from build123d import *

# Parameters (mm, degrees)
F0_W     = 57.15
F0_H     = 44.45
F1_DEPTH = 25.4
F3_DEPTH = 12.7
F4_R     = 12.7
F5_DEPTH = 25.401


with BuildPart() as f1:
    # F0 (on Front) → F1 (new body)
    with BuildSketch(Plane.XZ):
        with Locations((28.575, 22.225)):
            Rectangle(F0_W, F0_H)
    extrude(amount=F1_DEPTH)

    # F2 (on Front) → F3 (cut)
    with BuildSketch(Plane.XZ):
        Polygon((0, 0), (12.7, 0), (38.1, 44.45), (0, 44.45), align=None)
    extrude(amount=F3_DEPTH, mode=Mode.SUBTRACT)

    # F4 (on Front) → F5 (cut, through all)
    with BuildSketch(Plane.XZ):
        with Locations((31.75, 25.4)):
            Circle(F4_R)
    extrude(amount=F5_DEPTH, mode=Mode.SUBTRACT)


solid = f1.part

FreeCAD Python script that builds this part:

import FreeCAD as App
import Part
import Sketcher
Q = App.Units.Quantity

doc = App.newDocument("Part")
body = doc.addObject("PartDesign::Body", "Body")

sketch1 = doc.addObject("Sketcher::SketchObject", "Sketch")
body.addObject(sketch1)
sketch1.AttachmentSupport = (doc.XZ_Plane, [""])
sketch1.MapMode = "FlatFace"
sketch1.addGeometry(Part.LineSegment(App.Vector(0, 44, 0), App.Vector(0, 0, 0)), False)
sketch1.addGeometry(Part.LineSegment(App.Vector(0, 0, 0), App.Vector(57, 0, 0)), False)
sketch1.addGeometry(Part.LineSegment(App.Vector(57, 0, 0), App.Vector(57, 44, 0)), False)
sketch1.addGeometry(Part.LineSegment(App.Vector(57, 44, 0), App.Vector(0, 44, 0)), False)
sketch1.addConstraint(Sketcher.Constraint("Coincident", 0, 2, 1, 1))
sketch1.addConstraint(Sketcher.Constraint("Coincident", 1, 2, 2, 1))
sketch1.addConstraint(Sketcher.Constraint("Coincident", 2, 2, 3, 1))
sketch1.addConstraint(Sketcher.Constraint("Coincident", 3, 2, 0, 1))
sketch1.addConstraint(Sketcher.Constraint("Vertical", 0))
sketch1.addConstraint(Sketcher.Constraint("Horizontal", 1))
sketch1.addConstraint(Sketcher.Constraint("Vertical", 2))
sketch1.addConstraint(Sketcher.Constraint("Horizontal", 3))
sketch1.addConstraint(Sketcher.Constraint("Coincident", 0, 2, -1, 1))
sketch1.addConstraint(Sketcher.Constraint("DistanceX", 1, 1, 1, 2, Q("2.25 in")))
sketch1.addConstraint(Sketcher.Constraint("DistanceY", 0, 2, 0, 1, Q("1.75 in")))
pad1 = doc.addObject("PartDesign::Pad", "Pad")
body.addObject(pad1)
pad1.Profile = sketch1
pad1.Length = Q("1 in")

sketch2 = doc.addObject("Sketcher::SketchObject", "Sketch001")
body.addObject(sketch2)
sketch2.AttachmentSupport = (doc.XZ_Plane, [""])
sketch2.MapMode = "FlatFace"
sketch2.addGeometry(Part.LineSegment(App.Vector(0, 0, 0), App.Vector(13, 0, 0)), False)
sketch2.addGeometry(Part.LineSegment(App.Vector(13, 0, 0), App.Vector(38, 44, 0)), False)
sketch2.addGeometry(Part.LineSegment(App.Vector(38, 44, 0), App.Vector(0, 44, 0)), False)
sketch2.addGeometry(Part.LineSegment(App.Vector(0, 44, 0), App.Vector(0, 0, 0)), False)
sketch2.addConstraint(Sketcher.Constraint("Coincident", 0, 2, 1, 1))
sketch2.addConstraint(Sketcher.Constraint("Coincident", 1, 2, 2, 1))
sketch2.addConstraint(Sketcher.Constraint("Coincident", 2, 2, 3, 1))
sketch2.addConstraint(Sketcher.Constraint("Coincident", 3, 2, 0, 1))
sketch2.addConstraint(Sketcher.Constraint("Horizontal", 0))
sketch2.addConstraint(Sketcher.Constraint("Horizontal", 2))
sketch2.addConstraint(Sketcher.Constraint("Vertical", 3))
sketch2.addConstraint(Sketcher.Constraint("Coincident", 3, 2, -1, 1))
sketch2.addConstraint(Sketcher.Constraint("DistanceX", 0, 1, 0, 2, Q("0.5 in")))
sketch2.addConstraint(Sketcher.Constraint("DistanceX", 2, 2, 2, 1, Q("1.5 in")))
sketch2.addConstraint(Sketcher.Constraint("DistanceY", 3, 2, 3, 1, Q("1.75 in")))
pocket1 = doc.addObject("PartDesign::Pocket", "Pocket")
body.addObject(pocket1)
pocket1.Profile = sketch2
pocket1.Length = Q("0.5 in")
pocket1.Reversed = True

sketch3 = doc.addObject("Sketcher::SketchObject", "Sketch002")
body.addObject(sketch3)
sketch3.AttachmentSupport = (doc.XZ_Plane, [""])
sketch3.MapMode = "FlatFace"
sketch3.addGeometry(Part.Circle(App.Vector(32, 25, 0), App.Vector(0, 0, 1), 13), False)
sketch3.addConstraint(Sketcher.Constraint("Diameter", 0, Q("1 in")))
sketch3.addConstraint(Sketcher.Constraint("DistanceY", -1, 1, 0, 3, Q("1 in")))
sketch3.addConstraint(Sketcher.Constraint("DistanceX", -1, 1, 0, 3, Q("1.25 in")))
pocket2 = doc.addObject("PartDesign::Pocket", "Pocket001")
body.addObject(pocket2)
pocket2.Profile = sketch3
pocket2.Type = "ThroughAll"
pocket2.Reversed = True

doc.recompute()
